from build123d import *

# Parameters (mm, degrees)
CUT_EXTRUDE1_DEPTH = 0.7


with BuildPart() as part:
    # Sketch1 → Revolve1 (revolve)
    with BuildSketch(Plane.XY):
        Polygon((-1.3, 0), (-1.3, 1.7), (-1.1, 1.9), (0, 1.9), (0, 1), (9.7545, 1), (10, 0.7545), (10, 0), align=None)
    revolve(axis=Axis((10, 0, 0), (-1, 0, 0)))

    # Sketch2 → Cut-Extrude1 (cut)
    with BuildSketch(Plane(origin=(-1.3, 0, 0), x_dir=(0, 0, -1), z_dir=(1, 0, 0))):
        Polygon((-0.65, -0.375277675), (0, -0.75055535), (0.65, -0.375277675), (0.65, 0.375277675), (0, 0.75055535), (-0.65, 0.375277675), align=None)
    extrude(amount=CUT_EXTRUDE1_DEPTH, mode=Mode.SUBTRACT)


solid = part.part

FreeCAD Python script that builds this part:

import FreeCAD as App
import Part
import Sketcher

V = App.Vector
Q = App.Units.Quantity

doc = App.newDocument("Part")
body = doc.addObject("PartDesign::Body", "Body")

sketch1 = body.newObject("Sketcher::SketchObject", "Sketch")
sketch1.AttachmentSupport = (doc.getObject("XY_Plane"), [""])
sketch1.MapMode = "FlatFace"
sketch1.addGeometry([
    Part.LineSegment(V(-1.3, 1.7, 0), V(-1.3, 0, 0)),
    Part.LineSegment(V(-1.3, 0, 0), V(10, 0, 0)),
    Part.LineSegment(V(10, 0, 0), V(10, 0.7545, 0)),
    Part.LineSegment(V(10, 0.7545, 0), V(9.7545, 1, 0)),
    Part.LineSegment(V(9.7545, 1, 0), V(0, 1, 0)),
    Part.LineSegment(V(0, 1, 0), V(0, 1.9, 0)),
    Part.LineSegment(V(0, 1.9, 0), V(-1.1, 1.9, 0)),
    Part.LineSegment(V(-1.1, 1.9, 0), V(-1.3, 1.7, 0)),
], False)
sketch1.addConstraint([
    Sketcher.Constraint("Coincident", 0, 2, 1, 1),
    Sketcher.Constraint("Coincident", 1, 2, 2, 1),
    Sketcher.Constraint("Coincident", 2, 2, 3, 1),
    Sketcher.Constraint("Coincident", 3, 2, 4, 1),
    Sketcher.Constraint("Coincident", 4, 2, 5, 1),
    Sketcher.Constraint("Coincident", 5, 2, 6, 1),
    Sketcher.Constraint("Coincident", 6, 2, 7, 1),
    Sketcher.Constraint("Coincident", 7, 2, 0, 1),
    Sketcher.Constraint("Vertical", 0),
    Sketcher.Constraint("Horizontal", 1),
    Sketcher.Constraint("Vertical", 2),
    Sketcher.Constraint("Horizontal", 4),
    Sketcher.Constraint("Vertical", 5),
    Sketcher.Constraint("Horizontal", 6),
    Sketcher.Constraint("PointOnObject", 0, 2, -1),
    Sketcher.Constraint("PointOnObject", 4, 2, -2),
    Sketcher.Constraint("Perpendicular", 3, 7),
    Sketcher.Constraint("Angle", 3, Q("135 deg")),
    Sketcher.Constraint("DistanceX", 1, 1, 1, 2, Q("11.3 mm")),
    Sketcher.Constraint("DistanceX", 6, 2, 6, 1, Q("1.1 mm")),
    Sketcher.Constraint("DistanceY", 0, 2, 0, 1, Q("1.7 mm")),
    Sketcher.Constraint("DistanceY", 5, 1, 5, 2, Q("0.9 mm")),
    Sketcher.Constraint("DistanceX", -1, 1, 1, 2, Q("10 mm")),
    Sketcher.Constraint("DistanceX", 4, 2, 4, 1, Q("9.7545 mm")),
])
revolution = body.newObject("PartDesign::Revolution", "Revolution")
revolution.Profile = sketch1
revolution.ReferenceAxis = (sketch1, ["H_Axis"])
revolution.Angle = 360

sketch2 = body.newObject("Sketcher::SketchObject", "Sketch001")
sketch2.AttachmentSupport = (doc.getObject("YZ_Plane"), [""])
sketch2.MapMode = "FlatFace"
sketch2.AttachmentOffset = App.Placement(V(0, 0, -1.3), App.Rotation())
sketch2.addGeometry([
    Part.LineSegment(V(-0.375278, 0.65, 0), V(-0.750555, 0, 0)),
    Part.LineSegment(V(-0.750555, 0, 0), V(-0.375278, -0.65, 0)),
    Part.LineSegment(V(-0.375278, -0.65, 0), V(0.375278, -0.65, 0)),
    Part.LineSegment(V(0.375278, -0.65, 0), V(0.750555, 0, 0)),
    Part.LineSegment(V(0.750555, 0, 0), V(0.375278, 0.65, 0)),
    Part.LineSegment(V(0.375278, 0.65, 0), V(-0.375278, 0.65, 0)),
], False)
sketch2.addConstraint([
    Sketcher.Constraint("Coincident", 0, 2, 1, 1),
    Sketcher.Constraint("Coincident", 1, 2, 2, 1),
    Sketcher.Constraint("Coincident", 2, 2, 3, 1),
    Sketcher.Constraint("Coincident", 3, 2, 4, 1),
    Sketcher.Constraint("Coincident", 4, 2, 5, 1),
    Sketcher.Constraint("Coincident", 5, 2, 0, 1),
    Sketcher.Constraint("Horizontal", 2),
    Sketcher.Constraint("Horizontal", 5),
    Sketcher.Constraint("Symmetric", 0, 2, 3, 2, -1, 1),
    Sketcher.Constraint("Symmetric", 1, 2, 4, 2, -1, 1),
    Sketcher.Constraint("PointOnObject", 0, 2, -1),
    Sketcher.Constraint("Parallel", 0, 3),
    Sketcher.Constraint("Vertical", 2, 2, 4, 2),
    Sketcher.Constraint("Angle", 0, Q("-120 deg")),
    Sketcher.Constraint("DistanceY", 2, 2, 4, 2, Q("1.3 mm")),
    Sketcher.Constraint("DistanceX", 2, 1, 2, 2, Q("0.750555 mm")),
])
pocket1 = body.newObject("PartDesign::Pocket", "Pocket")
pocket1.Profile = sketch2
pocket1.Length = 0.7
pocket1.Reversed = True

doc.recompute()
